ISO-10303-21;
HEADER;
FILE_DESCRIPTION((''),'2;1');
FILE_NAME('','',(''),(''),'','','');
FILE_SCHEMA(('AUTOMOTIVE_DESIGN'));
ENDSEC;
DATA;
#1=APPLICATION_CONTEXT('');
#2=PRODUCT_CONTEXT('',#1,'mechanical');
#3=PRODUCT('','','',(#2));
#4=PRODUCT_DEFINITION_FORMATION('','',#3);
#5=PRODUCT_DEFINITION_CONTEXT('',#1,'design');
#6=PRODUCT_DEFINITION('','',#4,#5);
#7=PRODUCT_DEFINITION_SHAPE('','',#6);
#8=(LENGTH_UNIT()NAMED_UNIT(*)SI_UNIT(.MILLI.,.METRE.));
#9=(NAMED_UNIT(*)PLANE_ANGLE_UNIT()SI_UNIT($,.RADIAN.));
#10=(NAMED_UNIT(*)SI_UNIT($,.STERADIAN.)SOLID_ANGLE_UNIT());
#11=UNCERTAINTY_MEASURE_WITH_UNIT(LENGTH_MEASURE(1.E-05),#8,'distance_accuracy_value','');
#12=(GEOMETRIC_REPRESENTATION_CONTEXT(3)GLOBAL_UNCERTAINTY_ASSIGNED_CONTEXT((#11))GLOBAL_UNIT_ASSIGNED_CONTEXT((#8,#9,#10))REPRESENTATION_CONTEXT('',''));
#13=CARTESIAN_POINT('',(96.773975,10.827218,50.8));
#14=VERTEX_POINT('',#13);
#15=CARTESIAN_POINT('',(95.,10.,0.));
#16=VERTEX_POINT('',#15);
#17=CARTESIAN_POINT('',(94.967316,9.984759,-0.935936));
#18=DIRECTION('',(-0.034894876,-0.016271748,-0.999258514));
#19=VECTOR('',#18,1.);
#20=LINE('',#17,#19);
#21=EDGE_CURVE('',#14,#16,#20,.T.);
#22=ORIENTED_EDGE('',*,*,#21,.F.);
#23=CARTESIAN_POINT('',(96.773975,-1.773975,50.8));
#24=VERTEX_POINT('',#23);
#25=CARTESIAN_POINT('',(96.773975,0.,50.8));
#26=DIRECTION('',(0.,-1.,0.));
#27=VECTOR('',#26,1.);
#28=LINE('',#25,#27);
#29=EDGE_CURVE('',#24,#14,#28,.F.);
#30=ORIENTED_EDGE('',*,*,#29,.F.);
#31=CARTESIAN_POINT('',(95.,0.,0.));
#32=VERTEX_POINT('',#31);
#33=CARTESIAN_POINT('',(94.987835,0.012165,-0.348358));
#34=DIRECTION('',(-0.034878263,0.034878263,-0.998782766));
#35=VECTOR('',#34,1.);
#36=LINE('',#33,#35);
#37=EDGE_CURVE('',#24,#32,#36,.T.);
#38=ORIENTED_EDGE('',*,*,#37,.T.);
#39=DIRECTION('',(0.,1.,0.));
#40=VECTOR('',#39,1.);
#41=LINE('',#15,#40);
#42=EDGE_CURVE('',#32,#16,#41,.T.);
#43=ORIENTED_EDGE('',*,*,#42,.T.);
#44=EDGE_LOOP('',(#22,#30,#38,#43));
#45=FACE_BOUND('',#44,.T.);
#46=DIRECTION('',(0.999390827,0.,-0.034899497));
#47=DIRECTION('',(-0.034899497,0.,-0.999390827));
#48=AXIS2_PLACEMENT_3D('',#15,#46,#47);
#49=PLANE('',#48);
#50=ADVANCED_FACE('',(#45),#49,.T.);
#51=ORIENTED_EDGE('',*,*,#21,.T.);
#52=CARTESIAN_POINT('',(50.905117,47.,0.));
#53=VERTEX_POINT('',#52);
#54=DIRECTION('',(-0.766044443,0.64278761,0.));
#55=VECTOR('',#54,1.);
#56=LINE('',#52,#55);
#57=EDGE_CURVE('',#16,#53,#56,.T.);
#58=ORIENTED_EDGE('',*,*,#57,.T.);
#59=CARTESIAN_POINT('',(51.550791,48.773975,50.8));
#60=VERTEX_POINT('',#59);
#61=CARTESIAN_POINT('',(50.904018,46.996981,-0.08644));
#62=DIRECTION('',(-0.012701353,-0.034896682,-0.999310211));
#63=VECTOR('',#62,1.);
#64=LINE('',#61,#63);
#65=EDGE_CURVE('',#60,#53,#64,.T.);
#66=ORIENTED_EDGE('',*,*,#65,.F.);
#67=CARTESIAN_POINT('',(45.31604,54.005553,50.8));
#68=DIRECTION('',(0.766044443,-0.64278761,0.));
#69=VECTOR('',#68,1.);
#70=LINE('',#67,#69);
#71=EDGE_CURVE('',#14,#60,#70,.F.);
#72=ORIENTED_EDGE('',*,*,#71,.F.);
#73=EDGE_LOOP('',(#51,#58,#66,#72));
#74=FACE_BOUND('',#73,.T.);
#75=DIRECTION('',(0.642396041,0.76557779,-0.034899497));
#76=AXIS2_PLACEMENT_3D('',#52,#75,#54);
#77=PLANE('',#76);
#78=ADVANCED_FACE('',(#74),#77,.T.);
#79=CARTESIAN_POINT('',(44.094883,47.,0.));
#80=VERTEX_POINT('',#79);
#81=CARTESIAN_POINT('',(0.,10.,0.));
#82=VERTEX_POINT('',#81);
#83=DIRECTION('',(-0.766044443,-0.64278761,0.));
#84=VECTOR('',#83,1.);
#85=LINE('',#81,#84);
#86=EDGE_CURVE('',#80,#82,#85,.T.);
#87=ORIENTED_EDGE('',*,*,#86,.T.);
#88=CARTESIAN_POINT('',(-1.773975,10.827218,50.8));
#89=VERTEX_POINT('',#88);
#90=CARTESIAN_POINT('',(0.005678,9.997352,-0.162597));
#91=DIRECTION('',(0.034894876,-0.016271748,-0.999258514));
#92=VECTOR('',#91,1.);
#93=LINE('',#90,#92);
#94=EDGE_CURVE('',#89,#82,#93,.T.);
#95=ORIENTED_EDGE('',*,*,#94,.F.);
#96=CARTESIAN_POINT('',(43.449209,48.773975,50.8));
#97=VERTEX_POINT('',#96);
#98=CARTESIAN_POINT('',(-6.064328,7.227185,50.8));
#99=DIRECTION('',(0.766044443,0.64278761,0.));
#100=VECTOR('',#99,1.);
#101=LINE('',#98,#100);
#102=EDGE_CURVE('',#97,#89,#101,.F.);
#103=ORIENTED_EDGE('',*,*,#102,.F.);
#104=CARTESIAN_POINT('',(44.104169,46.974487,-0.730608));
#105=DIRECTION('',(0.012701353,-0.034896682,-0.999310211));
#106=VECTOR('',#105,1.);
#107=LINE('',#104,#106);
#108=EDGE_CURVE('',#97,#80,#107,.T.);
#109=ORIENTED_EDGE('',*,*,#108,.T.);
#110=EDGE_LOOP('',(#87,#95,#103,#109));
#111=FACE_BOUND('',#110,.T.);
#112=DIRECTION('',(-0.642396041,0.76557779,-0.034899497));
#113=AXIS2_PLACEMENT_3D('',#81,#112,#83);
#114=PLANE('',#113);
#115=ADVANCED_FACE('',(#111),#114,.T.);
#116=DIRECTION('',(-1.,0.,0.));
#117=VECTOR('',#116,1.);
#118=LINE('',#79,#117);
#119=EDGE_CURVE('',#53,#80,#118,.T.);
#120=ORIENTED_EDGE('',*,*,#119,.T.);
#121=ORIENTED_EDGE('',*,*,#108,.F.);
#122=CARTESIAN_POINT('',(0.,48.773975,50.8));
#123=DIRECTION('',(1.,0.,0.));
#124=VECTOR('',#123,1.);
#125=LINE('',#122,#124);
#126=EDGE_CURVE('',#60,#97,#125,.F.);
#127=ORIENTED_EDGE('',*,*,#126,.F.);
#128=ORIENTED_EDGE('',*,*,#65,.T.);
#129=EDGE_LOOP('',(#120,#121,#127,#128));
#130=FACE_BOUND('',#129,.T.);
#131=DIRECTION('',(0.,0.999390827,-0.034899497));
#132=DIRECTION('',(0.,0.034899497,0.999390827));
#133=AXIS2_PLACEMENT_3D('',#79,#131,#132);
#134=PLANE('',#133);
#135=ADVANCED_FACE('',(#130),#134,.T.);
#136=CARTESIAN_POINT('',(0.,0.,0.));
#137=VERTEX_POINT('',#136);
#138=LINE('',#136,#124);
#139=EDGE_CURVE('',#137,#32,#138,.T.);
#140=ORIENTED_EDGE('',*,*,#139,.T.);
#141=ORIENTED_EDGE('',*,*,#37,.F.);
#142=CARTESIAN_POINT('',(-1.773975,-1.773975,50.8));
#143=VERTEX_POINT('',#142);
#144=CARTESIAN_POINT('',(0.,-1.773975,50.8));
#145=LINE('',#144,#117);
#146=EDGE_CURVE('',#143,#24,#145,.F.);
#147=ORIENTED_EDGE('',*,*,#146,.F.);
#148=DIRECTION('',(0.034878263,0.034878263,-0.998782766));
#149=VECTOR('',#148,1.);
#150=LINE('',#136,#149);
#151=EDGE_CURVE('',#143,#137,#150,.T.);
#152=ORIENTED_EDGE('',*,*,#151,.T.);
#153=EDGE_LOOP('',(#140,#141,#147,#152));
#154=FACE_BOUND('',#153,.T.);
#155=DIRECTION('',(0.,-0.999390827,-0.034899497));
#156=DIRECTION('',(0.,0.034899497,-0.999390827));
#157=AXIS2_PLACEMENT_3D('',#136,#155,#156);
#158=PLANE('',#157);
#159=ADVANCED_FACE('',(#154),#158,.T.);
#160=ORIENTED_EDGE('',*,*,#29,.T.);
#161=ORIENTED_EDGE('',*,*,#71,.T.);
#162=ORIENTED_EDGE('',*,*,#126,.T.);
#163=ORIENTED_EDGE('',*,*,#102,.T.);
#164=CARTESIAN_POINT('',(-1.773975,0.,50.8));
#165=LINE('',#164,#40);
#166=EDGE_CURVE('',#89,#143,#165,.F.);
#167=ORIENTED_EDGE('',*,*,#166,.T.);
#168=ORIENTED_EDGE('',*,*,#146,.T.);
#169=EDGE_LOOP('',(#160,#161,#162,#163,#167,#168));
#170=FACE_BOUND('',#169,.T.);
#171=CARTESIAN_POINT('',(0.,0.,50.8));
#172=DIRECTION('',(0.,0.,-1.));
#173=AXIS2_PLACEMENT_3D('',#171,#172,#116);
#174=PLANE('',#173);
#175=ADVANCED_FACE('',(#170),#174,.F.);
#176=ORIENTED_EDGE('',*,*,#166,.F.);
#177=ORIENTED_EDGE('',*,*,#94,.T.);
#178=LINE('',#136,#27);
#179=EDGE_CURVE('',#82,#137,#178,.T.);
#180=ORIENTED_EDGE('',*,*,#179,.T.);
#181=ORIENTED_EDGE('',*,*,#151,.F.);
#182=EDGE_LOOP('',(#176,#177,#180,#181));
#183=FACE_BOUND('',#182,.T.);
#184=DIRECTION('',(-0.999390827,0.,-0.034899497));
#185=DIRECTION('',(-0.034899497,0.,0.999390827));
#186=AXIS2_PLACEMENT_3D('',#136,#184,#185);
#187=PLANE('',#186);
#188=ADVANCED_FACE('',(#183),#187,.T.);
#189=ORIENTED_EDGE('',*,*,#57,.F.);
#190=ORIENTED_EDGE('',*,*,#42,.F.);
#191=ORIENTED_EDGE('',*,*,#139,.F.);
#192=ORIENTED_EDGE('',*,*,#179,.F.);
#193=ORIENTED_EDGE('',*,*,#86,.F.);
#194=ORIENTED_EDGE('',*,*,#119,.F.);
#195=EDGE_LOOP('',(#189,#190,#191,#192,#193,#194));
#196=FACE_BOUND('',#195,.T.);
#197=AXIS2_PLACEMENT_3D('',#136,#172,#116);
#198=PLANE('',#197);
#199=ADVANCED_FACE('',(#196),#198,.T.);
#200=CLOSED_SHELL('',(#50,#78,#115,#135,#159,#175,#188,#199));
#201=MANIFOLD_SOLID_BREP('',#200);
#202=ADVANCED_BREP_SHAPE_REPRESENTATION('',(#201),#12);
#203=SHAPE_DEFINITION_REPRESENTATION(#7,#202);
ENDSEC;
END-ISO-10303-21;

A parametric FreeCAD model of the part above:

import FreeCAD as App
import Part
import Sketcher
from FreeCAD import Vector
Q = App.Units.Quantity


def add_polygon(sketch, points):
    """Adds a closed chain of lines whose ends are joined by coincident constraints."""
    first, n = sketch.GeometryCount, len(points)
    for a, b in zip(points, points[1:] + points[:1]):
        sketch.addGeometry(Part.LineSegment(App.Vector(*a, 0), App.Vector(*b, 0)), False)
    for i in range(n):
        sketch.addConstraint(Sketcher.Constraint("Coincident", first + i, 2, first + (i + 1) % n, 1))

doc = App.newDocument("Part")
body = doc.addObject("PartDesign::Body", "Body")

# Sketch on XY plane
sketch1 = body.newObject("Sketcher::SketchObject", "Sketch")
sketch1.AttachmentSupport = (doc.getObject("XY_Plane"), [""])
sketch1.MapMode = "FlatFace"
add_polygon(sketch1, [(0, 0), (95, 0), (95, 10), (51, 47), (44, 47), (0, 10)])  # lines 0-5
sketch1.addConstraint([
    Sketcher.Constraint("Horizontal", 0),
    Sketcher.Constraint("Vertical", 1),
    Sketcher.Constraint("Horizontal", 3),
    Sketcher.Constraint("Vertical", 5),
    Sketcher.Constraint("Coincident", 5, 2, -1, 1),
    Sketcher.Constraint("Horizontal", 1, 2, 4, 2),
    Sketcher.Constraint("Equal", 2, 4),
    Sketcher.Constraint("DistanceX", 0, 1, 0, 2, Q("95 mm")),
    Sketcher.Constraint("DistanceY", 1, 1, 1, 2, Q("10 mm")),
    Sketcher.Constraint("Angle", 2, Q("140 deg")),
    Sketcher.Constraint("DistanceY", -1, 1, 2, 2, Q("47 mm")),
])
pad1 = body.newObject("PartDesign::Pad", "Pad")
pad1.Profile = sketch1
pad1.Length = 50.8
pad1.TaperAngle = 2

doc.recompute()
